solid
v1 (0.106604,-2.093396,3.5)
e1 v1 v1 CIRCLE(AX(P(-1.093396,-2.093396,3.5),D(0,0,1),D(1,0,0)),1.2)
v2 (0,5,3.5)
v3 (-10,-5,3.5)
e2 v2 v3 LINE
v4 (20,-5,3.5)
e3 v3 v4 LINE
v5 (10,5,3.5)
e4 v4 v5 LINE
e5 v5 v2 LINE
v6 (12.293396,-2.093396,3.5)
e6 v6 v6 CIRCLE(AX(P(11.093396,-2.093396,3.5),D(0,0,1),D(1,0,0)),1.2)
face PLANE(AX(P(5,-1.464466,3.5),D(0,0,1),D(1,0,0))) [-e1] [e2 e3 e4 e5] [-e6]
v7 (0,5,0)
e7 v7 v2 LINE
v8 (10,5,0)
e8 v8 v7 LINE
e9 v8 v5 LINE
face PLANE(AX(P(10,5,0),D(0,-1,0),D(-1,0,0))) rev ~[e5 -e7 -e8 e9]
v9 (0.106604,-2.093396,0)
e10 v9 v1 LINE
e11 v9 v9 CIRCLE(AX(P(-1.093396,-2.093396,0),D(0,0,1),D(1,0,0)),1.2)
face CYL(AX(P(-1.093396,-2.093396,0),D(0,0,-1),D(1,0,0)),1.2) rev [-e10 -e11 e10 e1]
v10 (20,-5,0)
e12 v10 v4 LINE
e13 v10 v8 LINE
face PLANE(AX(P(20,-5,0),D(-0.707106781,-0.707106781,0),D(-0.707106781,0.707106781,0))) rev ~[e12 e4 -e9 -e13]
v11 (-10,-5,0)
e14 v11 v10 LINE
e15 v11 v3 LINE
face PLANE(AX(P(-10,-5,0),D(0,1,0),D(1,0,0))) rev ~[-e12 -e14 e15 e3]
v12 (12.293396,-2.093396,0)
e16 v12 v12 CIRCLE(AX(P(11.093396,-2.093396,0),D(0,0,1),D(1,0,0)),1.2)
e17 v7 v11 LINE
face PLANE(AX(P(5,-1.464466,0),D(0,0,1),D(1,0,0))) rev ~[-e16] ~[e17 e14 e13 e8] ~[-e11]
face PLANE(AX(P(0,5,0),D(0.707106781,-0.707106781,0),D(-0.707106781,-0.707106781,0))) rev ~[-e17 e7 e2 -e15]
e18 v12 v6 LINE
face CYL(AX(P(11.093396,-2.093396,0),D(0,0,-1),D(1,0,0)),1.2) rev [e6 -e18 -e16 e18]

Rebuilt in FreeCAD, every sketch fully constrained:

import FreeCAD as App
import Part
import Sketcher

V = App.Vector
Q = App.Units.Quantity

doc = App.newDocument("Part")
body = doc.addObject("PartDesign::Body", "Body")

# Sketch on XY plane
sketch1 = body.newObject("Sketcher::SketchObject", "Sketch")
sketch1.AttachmentSupport = (doc.getObject("XY_Plane"), [""])
sketch1.MapMode = "FlatFace"
sketch1.addGeometry(Part.LineSegment(V(20, -5, 0), V(10, 5, 0)), False)
sketch1.addGeometry(Part.LineSegment(V(10, 5, 0), V(0, 5, 0)), False)
sketch1.addGeometry(Part.LineSegment(V(0, 5, 0), V(-10, -5, 0)), False)
sketch1.addGeometry(Part.LineSegment(V(-10, -5, 0), V(20, -5, 0)), False)
sketch1.addGeometry(Part.Circle(V(-1.1, -2.1, 0), V(0, 0, 1), 1.2), False)
sketch1.addGeometry(Part.Circle(V(11.1, -2.1, 0), V(0, 0, 1), 1.2), False)
sketch1.addConstraint(Sketcher.Constraint("Coincident", 0, 2, 1, 1))
sketch1.addConstraint(Sketcher.Constraint("Coincident", 1, 2, 2, 1))
sketch1.addConstraint(Sketcher.Constraint("Coincident", 2, 2, 3, 1))
sketch1.addConstraint(Sketcher.Constraint("Coincident", 3, 2, 0, 1))
sketch1.addConstraint(Sketcher.Constraint("Horizontal", 1))
sketch1.addConstraint(Sketcher.Constraint("Horizontal", 3))
sketch1.addConstraint(Sketcher.Constraint("Equal", 4, 5))
sketch1.addConstraint(Sketcher.Constraint("Symmetric", 0, 2, 2, 2, -1, 1))
sketch1.addConstraint(Sketcher.Constraint("PointOnObject", 1, 2, -2))
sketch1.addConstraint(Sketcher.Constraint("Perpendicular", 0, 2))
sketch1.addConstraint(Sketcher.Constraint("Horizontal", 4, 3, 5, 3))
sketch1.addConstraint(Sketcher.Constraint("Equal", 0, 2))
sketch1.addConstraint(Sketcher.Constraint("Diameter", 4, Q("2.4 mm")))
sketch1.addConstraint(Sketcher.Constraint("DistanceX", 1, 2, 1, 1, Q("10 mm")))
sketch1.addConstraint(Sketcher.Constraint("DistanceX", 4, 3, -1, 1, Q("1.093396 mm")))
sketch1.addConstraint(Sketcher.Constraint("DistanceY", 4, 3, -1, 1, Q("2.093396 mm")))
sketch1.addConstraint(Sketcher.Constraint("DistanceX", -1, 1, 5, 3, Q("11.093396 mm")))
pad1 = body.newObject("PartDesign::Pad", "Pad")
pad1.Profile = sketch1
pad1.Length = 3.5

doc.recompute()
